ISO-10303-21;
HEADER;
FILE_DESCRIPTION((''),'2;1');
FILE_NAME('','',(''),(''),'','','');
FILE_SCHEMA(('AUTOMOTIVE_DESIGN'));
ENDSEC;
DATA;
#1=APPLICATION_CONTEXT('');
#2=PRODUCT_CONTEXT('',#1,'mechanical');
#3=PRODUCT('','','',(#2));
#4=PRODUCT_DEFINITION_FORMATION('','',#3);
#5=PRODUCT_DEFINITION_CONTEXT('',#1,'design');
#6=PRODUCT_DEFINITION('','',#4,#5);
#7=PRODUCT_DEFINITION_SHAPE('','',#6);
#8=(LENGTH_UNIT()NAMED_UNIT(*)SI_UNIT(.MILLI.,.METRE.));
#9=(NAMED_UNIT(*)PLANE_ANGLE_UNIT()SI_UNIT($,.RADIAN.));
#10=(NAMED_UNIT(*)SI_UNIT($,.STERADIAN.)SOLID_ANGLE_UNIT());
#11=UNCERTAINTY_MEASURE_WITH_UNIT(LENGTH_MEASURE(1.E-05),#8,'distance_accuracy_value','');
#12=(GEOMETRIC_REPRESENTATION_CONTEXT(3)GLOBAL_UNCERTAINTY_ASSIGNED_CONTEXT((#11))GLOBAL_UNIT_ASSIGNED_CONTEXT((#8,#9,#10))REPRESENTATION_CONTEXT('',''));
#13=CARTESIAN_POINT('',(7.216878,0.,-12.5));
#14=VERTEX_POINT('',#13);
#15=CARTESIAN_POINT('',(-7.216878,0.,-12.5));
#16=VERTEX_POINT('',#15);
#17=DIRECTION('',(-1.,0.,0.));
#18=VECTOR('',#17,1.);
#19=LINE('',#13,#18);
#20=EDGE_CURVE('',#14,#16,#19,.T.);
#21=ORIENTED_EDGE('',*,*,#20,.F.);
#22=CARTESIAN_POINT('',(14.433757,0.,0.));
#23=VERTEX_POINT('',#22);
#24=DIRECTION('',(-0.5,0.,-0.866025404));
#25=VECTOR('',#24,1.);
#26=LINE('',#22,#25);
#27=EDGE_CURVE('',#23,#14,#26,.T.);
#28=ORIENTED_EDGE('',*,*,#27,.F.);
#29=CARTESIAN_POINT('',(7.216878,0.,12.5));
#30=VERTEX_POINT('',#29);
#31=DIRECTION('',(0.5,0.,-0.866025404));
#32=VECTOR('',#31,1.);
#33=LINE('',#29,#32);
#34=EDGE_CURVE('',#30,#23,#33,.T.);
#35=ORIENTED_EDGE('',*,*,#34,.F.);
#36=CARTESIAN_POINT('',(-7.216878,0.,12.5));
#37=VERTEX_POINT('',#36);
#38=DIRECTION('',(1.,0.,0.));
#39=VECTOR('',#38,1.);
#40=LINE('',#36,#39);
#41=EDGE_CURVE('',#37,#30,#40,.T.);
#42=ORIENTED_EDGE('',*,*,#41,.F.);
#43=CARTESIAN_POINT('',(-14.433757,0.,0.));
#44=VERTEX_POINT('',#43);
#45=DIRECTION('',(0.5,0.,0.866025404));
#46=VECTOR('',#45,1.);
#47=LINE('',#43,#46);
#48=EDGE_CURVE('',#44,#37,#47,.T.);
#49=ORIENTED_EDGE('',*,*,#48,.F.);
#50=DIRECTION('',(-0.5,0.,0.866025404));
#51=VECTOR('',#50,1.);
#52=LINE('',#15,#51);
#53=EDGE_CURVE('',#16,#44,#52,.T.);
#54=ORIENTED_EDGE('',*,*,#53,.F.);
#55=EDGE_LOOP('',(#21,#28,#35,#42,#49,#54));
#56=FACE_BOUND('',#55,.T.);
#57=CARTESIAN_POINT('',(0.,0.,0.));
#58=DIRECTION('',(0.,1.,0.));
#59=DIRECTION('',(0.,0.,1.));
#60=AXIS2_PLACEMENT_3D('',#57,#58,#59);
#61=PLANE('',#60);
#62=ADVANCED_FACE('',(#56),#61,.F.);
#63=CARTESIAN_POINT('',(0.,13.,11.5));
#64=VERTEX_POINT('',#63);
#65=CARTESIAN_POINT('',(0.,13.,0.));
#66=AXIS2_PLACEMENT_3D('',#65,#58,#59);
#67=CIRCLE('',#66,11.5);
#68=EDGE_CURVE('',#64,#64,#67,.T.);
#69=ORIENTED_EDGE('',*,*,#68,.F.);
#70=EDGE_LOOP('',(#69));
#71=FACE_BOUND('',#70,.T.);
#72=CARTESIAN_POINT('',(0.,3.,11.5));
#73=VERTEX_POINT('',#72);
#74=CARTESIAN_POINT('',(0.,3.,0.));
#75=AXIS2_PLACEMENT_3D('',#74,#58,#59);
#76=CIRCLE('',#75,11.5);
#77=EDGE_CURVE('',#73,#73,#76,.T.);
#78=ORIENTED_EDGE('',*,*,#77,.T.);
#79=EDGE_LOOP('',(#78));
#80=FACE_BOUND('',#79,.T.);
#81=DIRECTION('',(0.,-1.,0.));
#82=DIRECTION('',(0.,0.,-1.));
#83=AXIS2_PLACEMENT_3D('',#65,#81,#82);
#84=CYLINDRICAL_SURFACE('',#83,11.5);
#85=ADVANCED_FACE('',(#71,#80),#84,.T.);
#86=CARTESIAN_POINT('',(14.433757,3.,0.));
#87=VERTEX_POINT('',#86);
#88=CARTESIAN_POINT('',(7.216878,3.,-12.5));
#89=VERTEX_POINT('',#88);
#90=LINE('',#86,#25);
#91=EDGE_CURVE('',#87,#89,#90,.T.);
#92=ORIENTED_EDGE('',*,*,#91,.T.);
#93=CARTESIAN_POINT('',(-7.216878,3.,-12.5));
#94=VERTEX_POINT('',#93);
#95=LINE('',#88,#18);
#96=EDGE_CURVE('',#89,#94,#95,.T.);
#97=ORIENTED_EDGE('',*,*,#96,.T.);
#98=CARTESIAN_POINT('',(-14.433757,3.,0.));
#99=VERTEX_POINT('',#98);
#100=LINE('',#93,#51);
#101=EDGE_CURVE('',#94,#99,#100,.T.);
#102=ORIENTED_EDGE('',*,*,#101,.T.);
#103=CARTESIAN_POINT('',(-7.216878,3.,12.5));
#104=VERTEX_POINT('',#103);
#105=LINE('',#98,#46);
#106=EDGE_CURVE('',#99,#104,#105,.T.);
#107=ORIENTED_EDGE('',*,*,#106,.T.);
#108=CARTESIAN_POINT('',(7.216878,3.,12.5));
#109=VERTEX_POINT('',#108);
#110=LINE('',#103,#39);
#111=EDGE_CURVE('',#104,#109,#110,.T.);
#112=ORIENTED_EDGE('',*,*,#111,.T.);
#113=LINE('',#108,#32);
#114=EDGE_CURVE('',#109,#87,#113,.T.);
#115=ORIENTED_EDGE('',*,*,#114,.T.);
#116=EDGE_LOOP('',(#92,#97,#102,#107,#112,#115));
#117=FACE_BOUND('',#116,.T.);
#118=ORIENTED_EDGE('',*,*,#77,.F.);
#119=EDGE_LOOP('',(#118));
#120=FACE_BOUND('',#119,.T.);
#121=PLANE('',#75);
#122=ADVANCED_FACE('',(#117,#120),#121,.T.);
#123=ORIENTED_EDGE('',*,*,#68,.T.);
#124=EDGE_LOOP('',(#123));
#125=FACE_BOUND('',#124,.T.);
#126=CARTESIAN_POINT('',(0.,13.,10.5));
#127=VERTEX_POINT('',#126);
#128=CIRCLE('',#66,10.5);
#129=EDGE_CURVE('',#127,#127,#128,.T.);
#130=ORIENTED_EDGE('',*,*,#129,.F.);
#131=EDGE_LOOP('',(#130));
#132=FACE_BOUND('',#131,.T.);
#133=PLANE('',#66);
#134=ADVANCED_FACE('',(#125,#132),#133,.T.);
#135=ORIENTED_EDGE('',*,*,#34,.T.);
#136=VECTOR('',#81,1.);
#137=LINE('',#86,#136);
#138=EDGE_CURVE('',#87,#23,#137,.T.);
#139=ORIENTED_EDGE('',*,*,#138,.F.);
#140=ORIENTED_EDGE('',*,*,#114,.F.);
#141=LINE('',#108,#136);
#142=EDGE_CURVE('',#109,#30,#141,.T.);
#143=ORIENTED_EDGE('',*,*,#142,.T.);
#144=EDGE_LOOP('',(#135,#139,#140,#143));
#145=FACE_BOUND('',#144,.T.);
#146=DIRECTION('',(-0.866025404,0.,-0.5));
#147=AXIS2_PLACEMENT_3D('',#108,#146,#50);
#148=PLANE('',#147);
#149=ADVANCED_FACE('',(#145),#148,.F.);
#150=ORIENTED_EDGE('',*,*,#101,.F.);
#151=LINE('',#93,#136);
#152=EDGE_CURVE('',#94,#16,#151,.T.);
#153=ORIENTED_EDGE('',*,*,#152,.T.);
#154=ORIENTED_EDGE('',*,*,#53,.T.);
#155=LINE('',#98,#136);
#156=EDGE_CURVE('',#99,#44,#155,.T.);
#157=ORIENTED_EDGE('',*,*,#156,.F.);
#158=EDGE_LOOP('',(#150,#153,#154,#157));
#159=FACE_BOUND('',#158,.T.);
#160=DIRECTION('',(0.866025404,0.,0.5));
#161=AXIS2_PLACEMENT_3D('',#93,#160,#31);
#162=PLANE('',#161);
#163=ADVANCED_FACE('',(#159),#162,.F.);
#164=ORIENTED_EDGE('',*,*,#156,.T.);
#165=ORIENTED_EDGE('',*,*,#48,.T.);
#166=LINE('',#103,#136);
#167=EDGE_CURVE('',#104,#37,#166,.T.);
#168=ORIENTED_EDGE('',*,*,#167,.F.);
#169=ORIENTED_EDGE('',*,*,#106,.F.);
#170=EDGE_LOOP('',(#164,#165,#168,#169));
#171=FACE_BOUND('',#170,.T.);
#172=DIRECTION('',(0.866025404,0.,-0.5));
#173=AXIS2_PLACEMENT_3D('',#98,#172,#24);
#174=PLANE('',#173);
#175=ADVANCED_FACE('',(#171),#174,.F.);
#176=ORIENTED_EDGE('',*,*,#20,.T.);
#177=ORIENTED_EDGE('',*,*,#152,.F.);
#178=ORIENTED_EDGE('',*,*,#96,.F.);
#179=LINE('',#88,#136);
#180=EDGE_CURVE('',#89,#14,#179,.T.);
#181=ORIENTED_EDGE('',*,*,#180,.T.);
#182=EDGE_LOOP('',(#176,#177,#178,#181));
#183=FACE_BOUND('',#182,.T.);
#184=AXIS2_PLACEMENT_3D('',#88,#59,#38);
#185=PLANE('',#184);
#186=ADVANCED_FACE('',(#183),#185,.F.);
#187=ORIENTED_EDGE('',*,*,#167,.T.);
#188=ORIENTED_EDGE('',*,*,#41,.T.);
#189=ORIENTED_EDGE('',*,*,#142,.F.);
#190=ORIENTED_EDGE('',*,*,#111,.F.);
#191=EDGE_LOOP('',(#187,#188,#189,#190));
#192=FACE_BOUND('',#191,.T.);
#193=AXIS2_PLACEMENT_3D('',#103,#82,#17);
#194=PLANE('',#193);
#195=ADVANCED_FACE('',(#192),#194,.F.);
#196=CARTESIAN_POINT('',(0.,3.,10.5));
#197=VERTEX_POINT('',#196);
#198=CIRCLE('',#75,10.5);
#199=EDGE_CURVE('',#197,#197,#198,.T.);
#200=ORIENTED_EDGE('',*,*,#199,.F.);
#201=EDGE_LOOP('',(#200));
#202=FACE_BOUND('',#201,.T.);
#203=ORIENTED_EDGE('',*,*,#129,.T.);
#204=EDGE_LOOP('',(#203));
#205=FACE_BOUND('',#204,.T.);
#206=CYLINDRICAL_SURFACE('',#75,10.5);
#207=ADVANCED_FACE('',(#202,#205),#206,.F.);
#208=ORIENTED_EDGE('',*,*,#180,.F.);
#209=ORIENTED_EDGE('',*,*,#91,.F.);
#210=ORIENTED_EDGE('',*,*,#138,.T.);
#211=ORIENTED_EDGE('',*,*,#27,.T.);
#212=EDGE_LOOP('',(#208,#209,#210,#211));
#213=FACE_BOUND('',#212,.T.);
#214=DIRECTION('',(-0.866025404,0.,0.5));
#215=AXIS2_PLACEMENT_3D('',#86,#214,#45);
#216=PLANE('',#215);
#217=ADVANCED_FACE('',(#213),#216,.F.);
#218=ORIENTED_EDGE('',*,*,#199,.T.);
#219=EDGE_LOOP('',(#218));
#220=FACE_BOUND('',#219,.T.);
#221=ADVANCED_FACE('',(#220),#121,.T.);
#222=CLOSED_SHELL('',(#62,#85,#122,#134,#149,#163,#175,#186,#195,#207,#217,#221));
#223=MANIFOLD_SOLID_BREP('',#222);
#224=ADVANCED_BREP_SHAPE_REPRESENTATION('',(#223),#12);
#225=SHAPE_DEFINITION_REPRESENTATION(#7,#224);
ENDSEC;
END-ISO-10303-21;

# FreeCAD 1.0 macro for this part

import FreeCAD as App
import Part
import Sketcher
from FreeCAD import Vector
Q = App.Units.Quantity


def add_polygon(sketch, points):
    """Adds a closed chain of lines whose ends are joined by coincident constraints."""
    first, n = sketch.GeometryCount, len(points)
    for a, b in zip(points, points[1:] + points[:1]):
        sketch.addGeometry(Part.LineSegment(App.Vector(*a, 0), App.Vector(*b, 0)), False)
    for i in range(n):
        sketch.addConstraint(Sketcher.Constraint("Coincident", first + i, 2, first + (i + 1) % n, 1))

doc = App.newDocument("Part")
body = doc.addObject("PartDesign::Body", "Body")

# Sketch on XZ plane
sketch1 = body.newObject("Sketcher::SketchObject", "Sketch")
sketch1.AttachmentSupport = (doc.getObject("XZ_Plane"), [""])
sketch1.MapMode = "FlatFace"
add_polygon(sketch1, [(7, 12), (14, 0), (7, -12), (-7, -12), (-14, 0), (-7, 12)])  # lines 0-5
sketch1.addConstraint([
    Sketcher.Constraint("Horizontal", 2),
    Sketcher.Constraint("Horizontal", 5),
    Sketcher.Constraint("Symmetric", 0, 2, 3, 2, -1, 1),
    Sketcher.Constraint("Symmetric", 1, 2, 4, 2, -1, 1),
    Sketcher.Constraint("PointOnObject", 0, 2, -1),
    Sketcher.Constraint("Parallel", 0, 3),
    Sketcher.Constraint("Vertical", 2, 2, 4, 2),
    Sketcher.Constraint("Angle", 0, Q("-60 deg")),
    Sketcher.Constraint("DistanceY", 2, 2, 4, 2, 25.0),
    Sketcher.Constraint("DistanceX", 2, 2, 2, 1, 14.433757),
])
pad1 = body.newObject("PartDesign::Pad", "Pad")
pad1.Profile = sketch1
pad1.Length = 3
pad1.Reversed = True

# Sketch on XZ plane
sketch2 = body.newObject("Sketcher::SketchObject", "Sketch001")
sketch2.AttachmentSupport = (doc.getObject("XZ_Plane"), [""])
sketch2.MapMode = "FlatFace"
sketch2.AttachmentOffset = App.Placement(Vector(0, 0, -3), App.Rotation())
sketch2.addGeometry(Part.Circle(Vector(0, 0, 0), Vector(0, 0, 1), 12), False)
sketch2.addConstraint([
    Sketcher.Constraint("Coincident", 0, 3, -1, 1),
    Sketcher.Constraint("Diameter", 0, 23.0),
])
pad2 = body.newObject("PartDesign::Pad", "Pad001")
pad2.Profile = sketch2
pad2.Length = 10
pad2.Reversed = True

# Sketch on XZ plane
sketch3 = body.newObject("Sketcher::SketchObject", "Sketch002")
sketch3.AttachmentSupport = (doc.getObject("XZ_Plane"), [""])
sketch3.MapMode = "FlatFace"
sketch3.AttachmentOffset = App.Placement(Vector(0, 0, -13), App.Rotation())
sketch3.addGeometry(Part.Circle(Vector(0, 0, 0), Vector(0, 0, 1), 10), False)
sketch3.addConstraint([
    Sketcher.Constraint("Coincident", 0, 3, -1, 1),
    Sketcher.Constraint("Diameter", 0, 21.0),
])
pocket1 = body.newObject("PartDesign::Pocket", "Pocket")
pocket1.Profile = sketch3
pocket1.Length = 10
pocket1.Reversed = True

doc.recompute()
